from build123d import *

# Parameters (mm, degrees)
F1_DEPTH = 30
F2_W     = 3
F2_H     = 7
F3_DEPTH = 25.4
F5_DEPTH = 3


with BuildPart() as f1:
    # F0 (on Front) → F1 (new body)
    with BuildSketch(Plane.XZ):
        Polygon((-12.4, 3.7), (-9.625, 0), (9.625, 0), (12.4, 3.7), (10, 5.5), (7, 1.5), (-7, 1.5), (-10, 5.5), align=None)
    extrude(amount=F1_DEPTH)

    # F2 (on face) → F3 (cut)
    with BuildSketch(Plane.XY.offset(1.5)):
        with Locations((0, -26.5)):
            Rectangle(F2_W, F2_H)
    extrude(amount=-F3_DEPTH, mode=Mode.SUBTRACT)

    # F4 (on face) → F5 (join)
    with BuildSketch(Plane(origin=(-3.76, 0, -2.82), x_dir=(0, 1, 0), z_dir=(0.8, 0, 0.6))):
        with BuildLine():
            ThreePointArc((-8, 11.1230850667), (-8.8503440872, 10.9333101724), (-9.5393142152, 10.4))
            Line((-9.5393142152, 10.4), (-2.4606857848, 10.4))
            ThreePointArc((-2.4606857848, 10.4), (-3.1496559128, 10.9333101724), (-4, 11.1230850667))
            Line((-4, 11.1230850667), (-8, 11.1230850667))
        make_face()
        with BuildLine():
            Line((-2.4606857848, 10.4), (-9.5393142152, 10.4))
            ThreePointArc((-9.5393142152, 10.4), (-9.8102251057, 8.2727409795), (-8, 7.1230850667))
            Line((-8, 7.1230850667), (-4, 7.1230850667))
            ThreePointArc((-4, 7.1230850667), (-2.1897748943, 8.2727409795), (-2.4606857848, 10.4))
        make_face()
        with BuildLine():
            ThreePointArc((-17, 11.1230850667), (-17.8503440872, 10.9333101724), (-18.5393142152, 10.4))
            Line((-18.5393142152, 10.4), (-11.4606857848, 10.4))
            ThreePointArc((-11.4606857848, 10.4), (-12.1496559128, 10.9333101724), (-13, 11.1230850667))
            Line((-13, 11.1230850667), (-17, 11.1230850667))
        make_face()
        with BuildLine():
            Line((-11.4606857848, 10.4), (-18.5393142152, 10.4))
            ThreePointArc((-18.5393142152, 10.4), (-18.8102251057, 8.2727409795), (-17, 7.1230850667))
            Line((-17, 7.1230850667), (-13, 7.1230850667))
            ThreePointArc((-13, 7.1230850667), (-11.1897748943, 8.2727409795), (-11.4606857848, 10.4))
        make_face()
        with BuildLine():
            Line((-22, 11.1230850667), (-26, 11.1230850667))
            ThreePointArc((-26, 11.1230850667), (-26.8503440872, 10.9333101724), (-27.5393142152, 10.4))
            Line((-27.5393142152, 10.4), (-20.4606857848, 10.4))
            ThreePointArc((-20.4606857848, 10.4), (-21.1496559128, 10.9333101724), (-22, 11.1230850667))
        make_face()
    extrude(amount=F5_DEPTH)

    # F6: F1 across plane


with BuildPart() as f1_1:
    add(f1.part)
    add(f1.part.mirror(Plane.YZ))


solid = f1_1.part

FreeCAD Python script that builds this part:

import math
import FreeCAD as App
import Part
import Sketcher

V = App.Vector
Q = App.Units.Quantity

doc = App.newDocument("Part")
body = doc.addObject("PartDesign::Body", "Body")
body.AllowCompound = True

# Sketch on XZ plane
sketch1 = doc.addObject("Sketcher::SketchObject", "Sketch")
body.addObject(sketch1)
sketch1.AttachmentSupport = (doc.XZ_Plane, [""])
sketch1.MapMode = "FlatFace"
sketch1.addGeometry(Part.LineSegment(V(-12.4, 3.7, 0), V(-9.6, 0, 0)), False)
sketch1.addGeometry(Part.LineSegment(V(-9.6, 0, 0), V(9.6, 0, 0)), False)
sketch1.addGeometry(Part.LineSegment(V(9.6, 0, 0), V(12.4, 3.7, 0)), False)
sketch1.addGeometry(Part.LineSegment(V(12.4, 3.7, 0), V(10, 5.5, 0)), False)
sketch1.addGeometry(Part.LineSegment(V(10, 5.5, 0), V(7, 1.5, 0)), False)
sketch1.addGeometry(Part.LineSegment(V(7, 1.5, 0), V(-7, 1.5, 0)), False)
sketch1.addGeometry(Part.LineSegment(V(-7, 1.5, 0), V(-10, 5.5, 0)), False)
sketch1.addGeometry(Part.LineSegment(V(-10, 5.5, 0), V(-12.4, 3.7, 0)), False)
sketch1.addConstraint(Sketcher.Constraint("Coincident", 0, 2, 1, 1))
sketch1.addConstraint(Sketcher.Constraint("Coincident", 1, 2, 2, 1))
sketch1.addConstraint(Sketcher.Constraint("Coincident", 2, 2, 3, 1))
sketch1.addConstraint(Sketcher.Constraint("Coincident", 3, 2, 4, 1))
sketch1.addConstraint(Sketcher.Constraint("Coincident", 4, 2, 5, 1))
sketch1.addConstraint(Sketcher.Constraint("Coincident", 5, 2, 6, 1))
sketch1.addConstraint(Sketcher.Constraint("Coincident", 6, 2, 7, 1))
sketch1.addConstraint(Sketcher.Constraint("Coincident", 7, 2, 0, 1))
sketch1.addConstraint(Sketcher.Constraint("Horizontal", 1))
sketch1.addConstraint(Sketcher.Constraint("Horizontal", 5))
sketch1.addConstraint(Sketcher.Constraint("Symmetric", 0, 2, 1, 2, -1, 1))
sketch1.addConstraint(Sketcher.Constraint("Symmetric", 3, 2, 6, 2, -2))
sketch1.addConstraint(Sketcher.Constraint("Symmetric", 2, 2, 7, 2, -2))
sketch1.addConstraint(Sketcher.Constraint("Perpendicular", 2, 3))
sketch1.addConstraint(Sketcher.Constraint("Perpendicular", 3, 4))
sketch1.addConstraint(Sketcher.Constraint("Parallel", 0, 6))
sketch1.addConstraint(Sketcher.Constraint("DistanceX", 5, 2, 5, 1, Q("14 mm")))
sketch1.addConstraint(Sketcher.Constraint("Distance", 3, Q("3 mm")))
sketch1.addConstraint(Sketcher.Constraint("Distance", 4, Q("5 mm")))
sketch1.addConstraint(Sketcher.Constraint("DistanceX", -1, 1, 3, 2, Q("10 mm")))
sketch1.addConstraint(Sketcher.Constraint("DistanceX", 1, 1, 1, 2, Q("19.25 mm")))
pad1 = doc.addObject("PartDesign::Pad", "Pad")
body.addObject(pad1)
pad1.Profile = sketch1
pad1.Length = 30

# Sketch on XY plane
sketch2 = doc.addObject("Sketcher::SketchObject", "Sketch001")
body.addObject(sketch2)
sketch2.AttachmentSupport = (doc.XY_Plane, [""])
sketch2.MapMode = "FlatFace"
sketch2.AttachmentOffset = App.Placement(V(0, 0, 1.5), App.Rotation())
sketch2.addGeometry(Part.LineSegment(V(-1.5, -23, 0), V(-1.5, -30, 0)), False)
sketch2.addGeometry(Part.LineSegment(V(-1.5, -30, 0), V(1.5, -30, 0)), False)
sketch2.addGeometry(Part.LineSegment(V(1.5, -30, 0), V(1.5, -23, 0)), False)
sketch2.addGeometry(Part.LineSegment(V(1.5, -23, 0), V(-1.5, -23, 0)), False)
sketch2.addConstraint(Sketcher.Constraint("Coincident", 0, 2, 1, 1))
sketch2.addConstraint(Sketcher.Constraint("Coincident", 1, 2, 2, 1))
sketch2.addConstraint(Sketcher.Constraint("Coincident", 2, 2, 3, 1))
sketch2.addConstraint(Sketcher.Constraint("Coincident", 3, 2, 0, 1))
sketch2.addConstraint(Sketcher.Constraint("Vertical", 0))
sketch2.addConstraint(Sketcher.Constraint("Horizontal", 1))
sketch2.addConstraint(Sketcher.Constraint("Vertical", 2))
sketch2.addConstraint(Sketcher.Constraint("Horizontal", 3))
sketch2.addConstraint(Sketcher.Constraint("DistanceX", 1, 1, 1, 2, Q("3 mm")))
sketch2.addConstraint(Sketcher.Constraint("DistanceY", 0, 2, 0, 1, Q("7 mm")))
sketch2.addConstraint(Sketcher.Constraint("DistanceY", 0, 2, -1, 1, Q("30 mm")))
sketch2.addConstraint(Sketcher.Constraint("DistanceX", 0, 2, -1, 1, Q("1.5 mm")))
pocket1 = doc.addObject("PartDesign::Pocket", "Pocket")
body.addObject(pocket1)
pocket1.Profile = sketch2
pocket1.Length = 25.4

# Sketch on an angled plane
sketch3 = doc.addObject("Sketcher::SketchObject", "Sketch002")
body.addObject(sketch3)
sketch3.Placement = App.Placement(V(-3.76, 0, -2.82), App.Rotation(V(0, 1, 0), V(-0.6, 0, 0.8), V(0.8, 0, 0.6), "ZXY"))
sketch3.addGeometry(Part.ArcOfCircle(Part.Circle(V(-8, 9.1, 0), V(0, 0, 1), 2), math.radians(90), math.radians(140)), False)
sketch3.addGeometry(Part.ArcOfCircle(Part.Circle(V(-8, 9.1, 0), V(0, 0, 1), 2), math.radians(140), math.radians(270)), False)
sketch3.addGeometry(Part.LineSegment(V(-8, 7.1, 0), V(-4, 7.1, 0)), False)
sketch3.addGeometry(Part.ArcOfCircle(Part.Circle(V(-4, 9.1, 0), V(0, 0, 1), 2), math.radians(-90), math.radians(40)), False)
sketch3.addGeometry(Part.ArcOfCircle(Part.Circle(V(-4, 9.1, 0), V(0, 0, 1), 2), math.radians(40), math.radians(90)), False)
sketch3.addGeometry(Part.LineSegment(V(-4, 11.1, 0), V(-8, 11.1, 0)), False)
sketch3.addGeometry(Part.ArcOfCircle(Part.Circle(V(-17, 9.1, 0), V(0, 0, 1), 2), math.radians(90), math.radians(140)), False)
sketch3.addGeometry(Part.ArcOfCircle(Part.Circle(V(-17, 9.1, 0), V(0, 0, 1), 2), math.radians(140), math.radians(270)), False)
sketch3.addGeometry(Part.LineSegment(V(-17, 7.1, 0), V(-13, 7.1, 0)), False)
sketch3.addGeometry(Part.ArcOfCircle(Part.Circle(V(-13, 9.1, 0), V(0, 0, 1), 2), math.radians(-90), math.radians(40)), False)
sketch3.addGeometry(Part.ArcOfCircle(Part.Circle(V(-13, 9.1, 0), V(0, 0, 1), 2), math.radians(40), math.radians(90)), False)
sketch3.addGeometry(Part.LineSegment(V(-13, 11.1, 0), V(-17, 11.1, 0)), False)
sketch3.addGeometry(Part.LineSegment(V(-22, 11.1, 0), V(-26, 11.1, 0)), False)
sketch3.addGeometry(Part.ArcOfCircle(Part.Circle(V(-26, 9.1, 0), V(0, 0, 1), 2), math.radians(90), math.radians(140)), False)
sketch3.addGeometry(Part.LineSegment(V(-27.5, 10.4, 0), V(-20.5, 10.4, 0)), False)
sketch3.addGeometry(Part.ArcOfCircle(Part.Circle(V(-22, 9.1, 0), V(0, 0, 1), 2), math.radians(40), math.radians(90)), False)
sketch3.addConstraint(Sketcher.Constraint("Tangent", 0, 2, 1, 1))
sketch3.addConstraint(Sketcher.Constraint("Tangent", 1, 2, 2, 1))
sketch3.addConstraint(Sketcher.Constraint("Tangent", 2, 2, 3, 1))
sketch3.addConstraint(Sketcher.Constraint("Tangent", 3, 2, 4, 1))
sketch3.addConstraint(Sketcher.Constraint("Tangent", 4, 2, 5, 1))
sketch3.addConstraint(Sketcher.Constraint("Tangent", 5, 2, 0, 1))
sketch3.addConstraint(Sketcher.Constraint("Tangent", 6, 2, 7, 1))
sketch3.addConstraint(Sketcher.Constraint("Tangent", 7, 2, 8, 1))
sketch3.addConstraint(Sketcher.Constraint("Tangent", 8, 2, 9, 1))
sketch3.addConstraint(Sketcher.Constraint("Tangent", 9, 2, 10, 1))
sketch3.addConstraint(Sketcher.Constraint("Tangent", 10, 2, 11, 1))
sketch3.addConstraint(Sketcher.Constraint("Tangent", 11, 2, 6, 1))
sketch3.addConstraint(Sketcher.Constraint("Tangent", 12, 2, 13, 1))
sketch3.addConstraint(Sketcher.Constraint("Coincident", 13, 2, 14, 1))
sketch3.addConstraint(Sketcher.Constraint("Coincident", 14, 2, 15, 1))
sketch3.addConstraint(Sketcher.Constraint("Tangent", 15, 2, 12, 1))
sketch3.addConstraint(Sketcher.Constraint("Horizontal", 2))
sketch3.addConstraint(Sketcher.Constraint("Horizontal", 5))
sketch3.addConstraint(Sketcher.Constraint("Horizontal", 8))
sketch3.addConstraint(Sketcher.Constraint("Horizontal", 11))
sketch3.addConstraint(Sketcher.Constraint("Horizontal", 12))
sketch3.addConstraint(Sketcher.Constraint("Horizontal", 14))
sketch3.addConstraint(Sketcher.Constraint("Equal", 0, 1))
sketch3.addConstraint(Sketcher.Constraint("Equal", 1, 3))
sketch3.addConstraint(Sketcher.Constraint("Equal", 4, 6))
sketch3.addConstraint(Sketcher.Constraint("Equal", 6, 7))
sketch3.addConstraint(Sketcher.Constraint("Equal", 7, 9))
sketch3.addConstraint(Sketcher.Constraint("Equal", 10, 13))
sketch3.addConstraint(Sketcher.Constraint("Equal", 13, 15))
sketch3.addConstraint(Sketcher.Constraint("Horizontal", 4, 3, 6, 3))
sketch3.addConstraint(Sketcher.Constraint("Horizontal", 10, 3, 13, 3))
sketch3.addConstraint(Sketcher.Constraint("Horizontal", 0, 2, 3, 2))
sketch3.addConstraint(Sketcher.Constraint("Horizontal", 3, 2, 6, 2))
sketch3.addConstraint(Sketcher.Constraint("Horizontal", 6, 2, 9, 2))
sketch3.addConstraint(Sketcher.Constraint("Horizontal", 9, 2, 13, 2))
sketch3.addConstraint(Sketcher.Constraint("Equal", 5, 8))
sketch3.addConstraint(Sketcher.Constraint("Equal", 11, 12))
sketch3.addConstraint(Sketcher.Constraint("Radius", 0, Q("2 mm")))
sketch3.addConstraint(Sketcher.Constraint("DistanceX", 2, 1, 2, 2, Q("4 mm")))
sketch3.addConstraint(Sketcher.Constraint("DistanceX", 0, 3, -1, 1, Q("8 mm")))
sketch3.addConstraint(Sketcher.Constraint("DistanceX", 6, 3, -1, 1, Q("17 mm")))
sketch3.addConstraint(Sketcher.Constraint("DistanceX", 13, 3, -1, 1, Q("26 mm")))
sketch3.addConstraint(Sketcher.Constraint("DistanceY", -1, 1, 0, 2, Q("10.4 mm")))
sketch3.addConstraint(Sketcher.Constraint("DistanceX", 14, 1, 14, 2, Q("7.078628 mm")))
pad2 = doc.addObject("PartDesign::Pad", "Pad001")
body.addObject(pad2)
pad2.Profile = sketch3
pad2.Length = 3
body2 = doc.addObject("PartDesign::Body", "Body001")
body2.AllowCompound = True
doc.recompute()

body2.BaseFeature = body
doc.recompute()

mirroring = doc.addObject("Part::Mirroring", "Mirroring")
mirroring.Source = body
mirroring.Base = V(0, 0, 0)
mirroring.Normal = V(1, 0, 0)
body3 = doc.addObject("PartDesign::Body", "Body002")
body3.BaseFeature = mirroring
boolean = doc.addObject("PartDesign::Boolean", "Boolean")
body2.addObject(boolean)
boolean.Type = "Fuse"
boolean.addObjects([body3])
doc.recompute()
mirroring.Visibility = False

doc.recompute()
